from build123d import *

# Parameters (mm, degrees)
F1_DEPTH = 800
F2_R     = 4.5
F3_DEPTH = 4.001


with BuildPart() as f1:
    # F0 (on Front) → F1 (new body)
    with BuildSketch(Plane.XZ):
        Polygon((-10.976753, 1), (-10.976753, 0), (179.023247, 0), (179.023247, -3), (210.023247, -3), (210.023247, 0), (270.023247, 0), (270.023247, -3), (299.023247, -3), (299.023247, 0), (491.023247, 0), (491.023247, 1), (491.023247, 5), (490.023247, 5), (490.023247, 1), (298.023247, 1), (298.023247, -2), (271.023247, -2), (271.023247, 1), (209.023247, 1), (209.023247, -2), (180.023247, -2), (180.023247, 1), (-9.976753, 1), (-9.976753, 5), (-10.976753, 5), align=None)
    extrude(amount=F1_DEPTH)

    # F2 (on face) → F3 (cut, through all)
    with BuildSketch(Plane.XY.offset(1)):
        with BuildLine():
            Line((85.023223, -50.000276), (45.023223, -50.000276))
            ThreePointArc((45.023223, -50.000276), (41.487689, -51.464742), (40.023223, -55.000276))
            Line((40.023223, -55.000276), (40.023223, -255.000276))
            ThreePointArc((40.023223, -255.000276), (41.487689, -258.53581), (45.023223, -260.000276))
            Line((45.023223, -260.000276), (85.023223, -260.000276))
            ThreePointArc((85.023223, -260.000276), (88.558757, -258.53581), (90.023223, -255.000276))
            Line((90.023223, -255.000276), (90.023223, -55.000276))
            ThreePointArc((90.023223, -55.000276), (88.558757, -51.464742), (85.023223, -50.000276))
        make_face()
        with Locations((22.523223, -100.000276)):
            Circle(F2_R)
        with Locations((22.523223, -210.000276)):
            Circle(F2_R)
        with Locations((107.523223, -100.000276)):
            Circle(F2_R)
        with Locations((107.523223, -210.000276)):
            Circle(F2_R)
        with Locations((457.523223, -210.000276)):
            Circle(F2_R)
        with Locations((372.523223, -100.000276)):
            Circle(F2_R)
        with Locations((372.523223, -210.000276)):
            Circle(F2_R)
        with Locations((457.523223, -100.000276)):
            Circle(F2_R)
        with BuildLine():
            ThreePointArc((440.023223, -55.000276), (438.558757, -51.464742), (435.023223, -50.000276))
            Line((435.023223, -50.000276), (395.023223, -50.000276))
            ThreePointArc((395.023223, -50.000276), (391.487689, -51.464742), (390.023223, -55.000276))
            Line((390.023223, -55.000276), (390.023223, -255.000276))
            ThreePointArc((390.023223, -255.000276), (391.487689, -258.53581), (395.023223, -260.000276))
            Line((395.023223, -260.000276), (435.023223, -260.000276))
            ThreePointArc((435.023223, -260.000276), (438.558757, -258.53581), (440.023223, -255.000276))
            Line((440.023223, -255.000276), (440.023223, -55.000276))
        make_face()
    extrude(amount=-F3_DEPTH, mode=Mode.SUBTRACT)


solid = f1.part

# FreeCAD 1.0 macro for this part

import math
import FreeCAD as App
import Part
import Sketcher

V = App.Vector
Q = App.Units.Quantity

doc = App.newDocument("Part")
params = doc.addObject("Spreadsheet::Sheet", "Params")
for row, (alias, value) in enumerate([
    ("sketch1_width", "190 mm"),
    ("sketch1_width2", "31 mm"),
    ("sketch1_width3", "60 mm"),
    ("sketch1_width4", "29 mm"),
    ("sketch1_width5", "192 mm"),
    ("pad1_length", "800 mm"),
    ("sketch2_diameter", "9 mm"),
    ("sketch2_radius", "5 mm"),
    ("sketch2_width", "40 mm"),
    ("sketch2_height", "200 mm"),
], start=1):
    params.set(f"A{row}", alias)
    params.set(f"B{row}", "=" + value)
    params.setAlias(f"B{row}", alias)

body = doc.addObject("PartDesign::Body", "Body")

# Sketch on XZ plane
sketch1 = doc.addObject("Sketcher::SketchObject", "Sketch")
body.addObject(sketch1)
sketch1.AttachmentSupport = (doc.XZ_Plane, [""])
sketch1.MapMode = "FlatFace"
sketch1.addGeometry(Part.LineSegment(V(-11, 0, 0), V(179, 0, 0)), False)
sketch1.addGeometry(Part.LineSegment(V(179, 0, 0), V(179, -3, 0)), False)
sketch1.addGeometry(Part.LineSegment(V(179, -3, 0), V(210, -3, 0)), False)
sketch1.addGeometry(Part.LineSegment(V(210, -3, 0), V(210, 0, 0)), False)
sketch1.addGeometry(Part.LineSegment(V(210, 0, 0), V(270, 0, 0)), False)
sketch1.addGeometry(Part.LineSegment(V(270, 0, 0), V(270, -3, 0)), False)
sketch1.addGeometry(Part.LineSegment(V(270, -3, 0), V(299, -3, 0)), False)
sketch1.addGeometry(Part.LineSegment(V(299, -3, 0), V(299, 0, 0)), False)
sketch1.addGeometry(Part.LineSegment(V(299, 0, 0), V(491, 0, 0)), False)
sketch1.addGeometry(Part.LineSegment(V(491, 0, 0), V(491, 5, 0)), False)
sketch1.addGeometry(Part.LineSegment(V(491, 5, 0), V(490, 5, 0)), False)
sketch1.addGeometry(Part.LineSegment(V(490, 5, 0), V(490, 1, 0)), False)
sketch1.addGeometry(Part.LineSegment(V(490, 1, 0), V(298, 1, 0)), False)
sketch1.addGeometry(Part.LineSegment(V(298, 1, 0), V(298, -2, 0)), False)
sketch1.addGeometry(Part.LineSegment(V(298, -2, 0), V(271, -2, 0)), False)
sketch1.addGeometry(Part.LineSegment(V(271, -2, 0), V(271, 1, 0)), False)
sketch1.addGeometry(Part.LineSegment(V(271, 1, 0), V(209, 1, 0)), False)
sketch1.addGeometry(Part.LineSegment(V(209, 1, 0), V(209, -2, 0)), False)
sketch1.addGeometry(Part.LineSegment(V(209, -2, 0), V(180, -2, 0)), False)
sketch1.addGeometry(Part.LineSegment(V(180, -2, 0), V(180, 1, 0)), False)
sketch1.addGeometry(Part.LineSegment(V(180, 1, 0), V(-10, 1, 0)), False)
sketch1.addGeometry(Part.LineSegment(V(-10, 1, 0), V(-10, 5, 0)), False)
sketch1.addGeometry(Part.LineSegment(V(-10, 5, 0), V(-11, 5, 0)), False)
sketch1.addGeometry(Part.LineSegment(V(-11, 5, 0), V(-11, 0, 0)), False)
sketch1.addConstraint(Sketcher.Constraint("Coincident", 0, 2, 1, 1))
sketch1.addConstraint(Sketcher.Constraint("Coincident", 1, 2, 2, 1))
sketch1.addConstraint(Sketcher.Constraint("Coincident", 2, 2, 3, 1))
sketch1.addConstraint(Sketcher.Constraint("Coincident", 3, 2, 4, 1))
sketch1.addConstraint(Sketcher.Constraint("Coincident", 4, 2, 5, 1))
sketch1.addConstraint(Sketcher.Constraint("Coincident", 5, 2, 6, 1))
sketch1.addConstraint(Sketcher.Constraint("Coincident", 6, 2, 7, 1))
sketch1.addConstraint(Sketcher.Constraint("Coincident", 7, 2, 8, 1))
sketch1.addConstraint(Sketcher.Constraint("Coincident", 8, 2, 9, 1))
sketch1.addConstraint(Sketcher.Constraint("Coincident", 9, 2, 10, 1))
sketch1.addConstraint(Sketcher.Constraint("Coincident", 10, 2, 11, 1))
sketch1.addConstraint(Sketcher.Constraint("Coincident", 11, 2, 12, 1))
sketch1.addConstraint(Sketcher.Constraint("Coincident", 12, 2, 13, 1))
sketch1.addConstraint(Sketcher.Constraint("Coincident", 13, 2, 14, 1))
sketch1.addConstraint(Sketcher.Constraint("Coincident", 14, 2, 15, 1))
sketch1.addConstraint(Sketcher.Constraint("Coincident", 15, 2, 16, 1))
sketch1.addConstraint(Sketcher.Constraint("Coincident", 16, 2, 17, 1))
sketch1.addConstraint(Sketcher.Constraint("Coincident", 17, 2, 18, 1))
sketch1.addConstraint(Sketcher.Constraint("Coincident", 18, 2, 19, 1))
sketch1.addConstraint(Sketcher.Constraint("Coincident", 19, 2, 20, 1))
sketch1.addConstraint(Sketcher.Constraint("Coincident", 20, 2, 21, 1))
sketch1.addConstraint(Sketcher.Constraint("Coincident", 21, 2, 22, 1))
sketch1.addConstraint(Sketcher.Constraint("Coincident", 22, 2, 23, 1))
sketch1.addConstraint(Sketcher.Constraint("Coincident", 23, 2, 0, 1))
sketch1.addConstraint(Sketcher.Constraint("Horizontal", 0))
sketch1.addConstraint(Sketcher.Constraint("Vertical", 1))
sketch1.addConstraint(Sketcher.Constraint("Horizontal", 2))
sketch1.addConstraint(Sketcher.Constraint("Vertical", 3))
sketch1.addConstraint(Sketcher.Constraint("Horizontal", 4))
sketch1.addConstraint(Sketcher.Constraint("Vertical", 5))
sketch1.addConstraint(Sketcher.Constraint("Horizontal", 6))
sketch1.addConstraint(Sketcher.Constraint("Vertical", 7))
sketch1.addConstraint(Sketcher.Constraint("Horizontal", 8))
sketch1.addConstraint(Sketcher.Constraint("Vertical", 9))
sketch1.addConstraint(Sketcher.Constraint("Horizontal", 10))
sketch1.addConstraint(Sketcher.Constraint("Vertical", 11))
sketch1.addConstraint(Sketcher.Constraint("Horizontal", 12))
sketch1.addConstraint(Sketcher.Constraint("Vertical", 13))
sketch1.addConstraint(Sketcher.Constraint("Horizontal", 14))
sketch1.addConstraint(Sketcher.Constraint("Vertical", 15))
sketch1.addConstraint(Sketcher.Constraint("Horizontal", 16))
sketch1.addConstraint(Sketcher.Constraint("Vertical", 17))
sketch1.addConstraint(Sketcher.Constraint("Horizontal", 18))
sketch1.addConstraint(Sketcher.Constraint("Vertical", 19))
sketch1.addConstraint(Sketcher.Constraint("Horizontal", 20))
sketch1.addConstraint(Sketcher.Constraint("Vertical", 21))
sketch1.addConstraint(Sketcher.Constraint("Horizontal", 22))
sketch1.addConstraint(Sketcher.Constraint("Vertical", 23))
sketch1.addConstraint(Sketcher.Constraint("PointOnObject", 0, 2, -1))
sketch1.addConstraint(Sketcher.Constraint("PointOnObject", 3, 2, -1))
sketch1.addConstraint(Sketcher.Constraint("PointOnObject", 7, 2, -1))
sketch1.addConstraint(Sketcher.Constraint("Horizontal", 2, 2, 5, 2))
sketch1.addConstraint(Sketcher.Constraint("Horizontal", 12, 2, 15, 2))
sketch1.addConstraint(Sketcher.Constraint("Horizontal", 14, 2, 17, 2))
sketch1.addConstraint(Sketcher.Constraint("Horizontal", 16, 2, 19, 2))
sketch1.addConstraint(Sketcher.Constraint("Horizontal", 10, 2, 21, 2))
sketch1.addConstraint(Sketcher.Constraint("Equal", 8, 12))
sketch1.addConstraint(Sketcher.Constraint("Equal", 6, 18))
sketch1.addConstraint(Sketcher.Constraint("Equal", 0, 20))
sketch1.addConstraint(Sketcher.Constraint("Equal", 10, 22))
sketch1.addConstraint(Sketcher.Constraint("Equal", 7, 13))
sketch1.addConstraint(Sketcher.Constraint("DistanceX", 0, 1, 0, 2, Q("190 mm")))
sketch1.addConstraint(Sketcher.Constraint("DistanceX", 2, 1, 2, 2, Q("31 mm")))
sketch1.addConstraint(Sketcher.Constraint("DistanceX", 4, 1, 4, 2, Q("60 mm")))
sketch1.addConstraint(Sketcher.Constraint("DistanceX", 6, 1, 6, 2, Q("29 mm")))
sketch1.addConstraint(Sketcher.Constraint("DistanceX", 8, 1, 8, 2, Q("192 mm")))
sketch1.addConstraint(Sketcher.Constraint("DistanceX", 10, 2, 10, 1, Q("1 mm")))
sketch1.addConstraint(Sketcher.Constraint("DistanceX", 14, 2, 14, 1, Q("27 mm")))
sketch1.addConstraint(Sketcher.Constraint("DistanceY", 1, 2, 1, 1, Q("3 mm")))
sketch1.addConstraint(Sketcher.Constraint("DistanceY", 9, 1, 9, 2, Q("5 mm")))
sketch1.addConstraint(Sketcher.Constraint("DistanceY", 11, 2, 11, 1, Q("4 mm")))
sketch1.addConstraint(Sketcher.Constraint("DistanceX", -1, 1, 0, 2, Q("179.023247 mm")))
sketch1.setExpression("Constraints[61]", "Params.sketch1_width")
sketch1.setExpression("Constraints[62]", "Params.sketch1_width2")
sketch1.setExpression("Constraints[63]", "Params.sketch1_width3")
sketch1.setExpression("Constraints[64]", "Params.sketch1_width4")
sketch1.setExpression("Constraints[65]", "Params.sketch1_width5")
pad1 = doc.addObject("PartDesign::Pad", "Pad")
body.addObject(pad1)
pad1.Profile = sketch1
pad1.setExpression("Length", "Params.pad1_length")

# Sketch on XY plane
sketch2 = doc.addObject("Sketcher::SketchObject", "Sketch001")
body.addObject(sketch2)
sketch2.AttachmentSupport = (doc.XY_Plane, [""])
sketch2.MapMode = "FlatFace"
sketch2.AttachmentOffset = App.Placement(V(0, 0, 1), App.Rotation())
sketch2.addGeometry(Part.LineSegment(V(85, -50, 0), V(45, -50, 0)), False)
sketch2.addGeometry(Part.ArcOfCircle(Part.Circle(V(45, -55, 0), V(0, 0, 1), 5), math.radians(90), math.radians(180)), False)
sketch2.addGeometry(Part.LineSegment(V(40, -55, 0), V(40, -255, 0)), False)
sketch2.addGeometry(Part.ArcOfCircle(Part.Circle(V(45, -255, 0), V(0, 0, 1), 5), math.radians(180), math.radians(270)), False)
sketch2.addGeometry(Part.LineSegment(V(45, -260, 0), V(85, -260, 0)), False)
sketch2.addGeometry(Part.ArcOfCircle(Part.Circle(V(85, -255, 0), V(0, 0, 1), 5), math.radians(-90), math.radians(0)), False)
sketch2.addGeometry(Part.LineSegment(V(90, -255, 0), V(90, -55, 0)), False)
sketch2.addGeometry(Part.ArcOfCircle(Part.Circle(V(85, -55, 0), V(0, 0, 1), 5), math.radians(0), math.radians(90)), False)
sketch2.addGeometry(Part.Circle(V(22.5, -100, 0), V(0, 0, 1), 4.5), False)
sketch2.addGeometry(Part.Circle(V(22.5, -210, 0), V(0, 0, 1), 4.5), False)
sketch2.addGeometry(Part.Circle(V(107.5, -100, 0), V(0, 0, 1), 4.5), False)
sketch2.addGeometry(Part.Circle(V(107.5, -210, 0), V(0, 0, 1), 4.5), False)
sketch2.addGeometry(Part.Circle(V(457.5, -210, 0), V(0, 0, 1), 4.5), False)
sketch2.addGeometry(Part.Circle(V(372.5, -100, 0), V(0, 0, 1), 4.5), False)
sketch2.addGeometry(Part.Circle(V(372.5, -210, 0), V(0, 0, 1), 4.5), False)
sketch2.addGeometry(Part.Circle(V(457.5, -100, 0), V(0, 0, 1), 4.5), False)
sketch2.addGeometry(Part.ArcOfCircle(Part.Circle(V(435, -55, 0), V(0, 0, 1), 5), math.radians(0), math.radians(90)), False)
sketch2.addGeometry(Part.LineSegment(V(435, -50, 0), V(395, -50, 0)), False)
sketch2.addGeometry(Part.ArcOfCircle(Part.Circle(V(395, -55, 0), V(0, 0, 1), 5), math.radians(90), math.radians(180)), False)
sketch2.addGeometry(Part.LineSegment(V(390, -55, 0), V(390, -255, 0)), False)
sketch2.addGeometry(Part.ArcOfCircle(Part.Circle(V(395, -255, 0), V(0, 0, 1), 5), math.radians(180), math.radians(270)), False)
sketch2.addGeometry(Part.LineSegment(V(395, -260, 0), V(435, -260, 0)), False)
sketch2.addGeometry(Part.ArcOfCircle(Part.Circle(V(435, -255, 0), V(0, 0, 1), 5), math.radians(-90), math.radians(0)), False)
sketch2.addGeometry(Part.LineSegment(V(440, -255, 0), V(440, -55, 0)), False)
sketch2.addConstraint(Sketcher.Constraint("Tangent", 0, 2, 1, 1))
sketch2.addConstraint(Sketcher.Constraint("Tangent", 1, 2, 2, 1))
sketch2.addConstraint(Sketcher.Constraint("Tangent", 2, 2, 3, 1))
sketch2.addConstraint(Sketcher.Constraint("Tangent", 3, 2, 4, 1))
sketch2.addConstraint(Sketcher.Constraint("Tangent", 4, 2, 5, 1))
sketch2.addConstraint(Sketcher.Constraint("Tangent", 5, 2, 6, 1))
sketch2.addConstraint(Sketcher.Constraint("Tangent", 6, 2, 7, 1))
sketch2.addConstraint(Sketcher.Constraint("Tangent", 7, 2, 0, 1))
sketch2.addConstraint(Sketcher.Constraint("Tangent", 16, 2, 17, 1))
sketch2.addConstraint(Sketcher.Constraint("Tangent", 17, 2, 18, 1))
sketch2.addConstraint(Sketcher.Constraint("Tangent", 18, 2, 19, 1))
sketch2.addConstraint(Sketcher.Constraint("Tangent", 19, 2, 20, 1))
sketch2.addConstraint(Sketcher.Constraint("Tangent", 20, 2, 21, 1))
sketch2.addConstraint(Sketcher.Constraint("Tangent", 21, 2, 22, 1))
sketch2.addConstraint(Sketcher.Constraint("Tangent", 22, 2, 23, 1))
sketch2.addConstraint(Sketcher.Constraint("Tangent", 23, 2, 16, 1))
sketch2.addConstraint(Sketcher.Constraint("Horizontal", 0))
sketch2.addConstraint(Sketcher.Constraint("Vertical", 2))
sketch2.addConstraint(Sketcher.Constraint("Horizontal", 4))
sketch2.addConstraint(Sketcher.Constraint("Vertical", 6))
sketch2.addConstraint(Sketcher.Constraint("Horizontal", 17))
sketch2.addConstraint(Sketcher.Constraint("Vertical", 19))
sketch2.addConstraint(Sketcher.Constraint("Horizontal", 21))
sketch2.addConstraint(Sketcher.Constraint("Vertical", 23))
sketch2.addConstraint(Sketcher.Constraint("Equal", 1, 3))
sketch2.addConstraint(Sketcher.Constraint("Equal", 3, 5))
sketch2.addConstraint(Sketcher.Constraint("Equal", 5, 7))
sketch2.addConstraint(Sketcher.Constraint("Equal", 8, 9))
sketch2.addConstraint(Sketcher.Constraint("Equal", 9, 10))
sketch2.addConstraint(Sketcher.Constraint("Equal", 10, 11))
sketch2.addConstraint(Sketcher.Constraint("Equal", 11, 12))
sketch2.addConstraint(Sketcher.Constraint("Equal", 12, 13))
sketch2.addConstraint(Sketcher.Constraint("Equal", 13, 14))
sketch2.addConstraint(Sketcher.Constraint("Equal", 14, 15))
sketch2.addConstraint(Sketcher.Constraint("Equal", 7, 16))
sketch2.addConstraint(Sketcher.Constraint("Equal", 16, 18))
sketch2.addConstraint(Sketcher.Constraint("Equal", 18, 20))
sketch2.addConstraint(Sketcher.Constraint("Equal", 20, 22))
sketch2.addConstraint(Sketcher.Constraint("Horizontal", 8, 3, 10, 3))
sketch2.addConstraint(Sketcher.Constraint("Horizontal", 9, 3, 11, 3))
sketch2.addConstraint(Sketcher.Constraint("Horizontal", 11, 3, 12, 3))
sketch2.addConstraint(Sketcher.Constraint("Horizontal", 10, 3, 13, 3))
sketch2.addConstraint(Sketcher.Constraint("Horizontal", 12, 3, 14, 3))
sketch2.addConstraint(Sketcher.Constraint("Horizontal", 13, 3, 15, 3))
sketch2.addConstraint(Sketcher.Constraint("Horizontal", 7, 3, 16, 3))
sketch2.addConstraint(Sketcher.Constraint("Horizontal", 5, 3, 20, 3))
sketch2.addConstraint(Sketcher.Constraint("Vertical", 8, 3, 9, 3))
sketch2.addConstraint(Sketcher.Constraint("Vertical", 10, 3, 11, 3))
sketch2.addConstraint(Sketcher.Constraint("Vertical", 13, 3, 14, 3))
sketch2.addConstraint(Sketcher.Constraint("Vertical", 12, 3, 15, 3))
sketch2.addConstraint(Sketcher.Constraint("Equal", 4, 17))
sketch2.addConstraint(Sketcher.Constraint("Diameter", 8, Q("9 mm")))
sketch2.addConstraint(Sketcher.Constraint("Radius", 1, Q("5 mm")))
sketch2.addConstraint(Sketcher.Constraint("DistanceX", 0, 2, 0, 1, Q("40 mm")))
sketch2.addConstraint(Sketcher.Constraint("DistanceY", 2, 2, 2, 1, Q("200 mm")))
sketch2.addConstraint(Sketcher.Constraint("DistanceY", 8, 3, 1, 3, Q("45 mm")))
sketch2.addConstraint(Sketcher.Constraint("DistanceY", 3, 3, 9, 3, Q("45 mm")))
sketch2.addConstraint(Sketcher.Constraint("DistanceX", 8, 3, 10, 3, Q("85 mm")))
sketch2.addConstraint(Sketcher.Constraint("DistanceX", 11, 3, 12, 3, Q("350 mm")))
sketch2.addConstraint(Sketcher.Constraint("DistanceX", 13, 3, 12, 3, Q("85 mm")))
sketch2.addConstraint(Sketcher.Constraint("DistanceX", 8, 3, 1, 3, Q("22.5 mm")))
sketch2.addConstraint(Sketcher.Constraint("DistanceX", 16, 3, 15, 3, Q("22.5 mm")))
sketch2.addConstraint(Sketcher.Constraint("DistanceX", -1, 1, 1, 3, Q("45.023223 mm")))
sketch2.addConstraint(Sketcher.Constraint("DistanceY", 1, 3, -1, 1, Q("55.000276 mm")))
sketch2.setExpression("Constraints[51]", "Params.sketch2_diameter")
sketch2.setExpression("Constraints[52]", "Params.sketch2_radius")
sketch2.setExpression("Constraints[53]", "Params.sketch2_width")
sketch2.setExpression("Constraints[54]", "Params.sketch2_height")
pocket1 = doc.addObject("PartDesign::Pocket", "Pocket")
body.addObject(pocket1)
pocket1.Profile = sketch2
pocket1.Type = "ThroughAll"

doc.recompute()
